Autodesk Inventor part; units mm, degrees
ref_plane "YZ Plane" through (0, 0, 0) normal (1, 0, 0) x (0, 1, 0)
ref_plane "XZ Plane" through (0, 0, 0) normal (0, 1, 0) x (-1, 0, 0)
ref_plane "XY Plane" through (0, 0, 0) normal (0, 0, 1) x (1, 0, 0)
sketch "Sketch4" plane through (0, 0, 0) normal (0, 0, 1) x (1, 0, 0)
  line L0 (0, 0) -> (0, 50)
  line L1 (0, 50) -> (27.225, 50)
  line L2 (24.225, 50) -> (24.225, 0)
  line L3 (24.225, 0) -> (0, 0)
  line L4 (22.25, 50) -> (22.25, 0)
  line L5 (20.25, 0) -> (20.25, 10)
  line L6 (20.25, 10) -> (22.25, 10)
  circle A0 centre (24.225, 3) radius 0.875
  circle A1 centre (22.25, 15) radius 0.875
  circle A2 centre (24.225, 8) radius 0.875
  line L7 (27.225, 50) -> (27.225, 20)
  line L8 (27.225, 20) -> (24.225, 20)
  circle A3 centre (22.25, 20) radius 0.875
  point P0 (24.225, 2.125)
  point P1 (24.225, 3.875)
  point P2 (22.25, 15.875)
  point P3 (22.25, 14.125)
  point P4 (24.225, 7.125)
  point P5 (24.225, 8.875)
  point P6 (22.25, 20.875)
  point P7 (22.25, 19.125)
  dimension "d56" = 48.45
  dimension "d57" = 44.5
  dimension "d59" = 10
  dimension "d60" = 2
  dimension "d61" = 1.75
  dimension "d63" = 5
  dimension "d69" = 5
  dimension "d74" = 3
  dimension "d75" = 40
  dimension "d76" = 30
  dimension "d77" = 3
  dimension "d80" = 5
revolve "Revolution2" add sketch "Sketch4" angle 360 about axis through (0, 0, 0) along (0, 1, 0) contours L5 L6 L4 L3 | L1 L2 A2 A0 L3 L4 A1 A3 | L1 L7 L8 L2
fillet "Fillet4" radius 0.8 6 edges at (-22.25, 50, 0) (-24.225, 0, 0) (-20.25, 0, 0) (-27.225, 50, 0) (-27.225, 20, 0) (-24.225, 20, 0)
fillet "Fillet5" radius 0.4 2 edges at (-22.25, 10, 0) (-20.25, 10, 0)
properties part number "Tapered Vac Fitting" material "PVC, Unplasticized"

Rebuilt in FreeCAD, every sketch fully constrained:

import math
import FreeCAD as App
import Part
import Sketcher


def edges_at(feature, points):
    """Names of the edges that pass closest to the given points."""
    edges = feature.Shape.Edges
    near = lambda p: min(range(len(edges)), key=lambda i: edges[i].distToShape(Part.Vertex(*p))[0])
    return sorted({f"Edge{near(p) + 1}" for p in points})

doc = App.newDocument("Part")
params = doc.addObject("Spreadsheet::Sheet", "Params")
for row, (alias, value) in enumerate([
    ("sketch1_width", "3 mm"),
    ("sketch1_width2", "2 mm"),
    ("sketch1_height", "10 mm"),
    ("sketch1_height2", "30 mm"),
    ("revolution_angle", "360 deg"),
    ("fillet_radius", "0.8 mm"),
    ("fillet2_radius", "0.4 mm"),
], start=1):
    params.set(f"A{row}", alias)
    params.set(f"B{row}", "=" + value)
    params.setAlias(f"B{row}", alias)

body = doc.addObject("PartDesign::Body", "Body")

# Sketch on XY plane
sketch1 = body.newObject("Sketcher::SketchObject", "Sketch")
sketch1.AttachmentSupport = (doc.getObject("XY_Plane"), [""])
sketch1.MapMode = "FlatFace"
sketch1.addGeometry([
    Part.LineSegment(App.Vector(20.2, 10, 0), App.Vector(20.2, 0, 0)),  # 0
    Part.LineSegment(App.Vector(20.2, 0, 0), App.Vector(24.2, 0, 0)),  # 1
    Part.LineSegment(App.Vector(24.2, 0, 0), App.Vector(24.2, 2.1, 0)),  # 2
    Part.ArcOfCircle(Part.Circle(App.Vector(24.2, 3, 0), App.Vector(0, 0, 1), 0.9), math.radians(90), math.radians(270)),  # 3
    Part.LineSegment(App.Vector(24.2, 3.9, 0), App.Vector(24.2, 7.1, 0)),  # 4
    Part.ArcOfCircle(Part.Circle(App.Vector(24.2, 8, 0), App.Vector(0, 0, 1), 0.9), math.radians(90), math.radians(270)),  # 5
    Part.LineSegment(App.Vector(24.2, 8.9, 0), App.Vector(24.2, 20, 0)),  # 6
    Part.LineSegment(App.Vector(24.2, 20, 0), App.Vector(27.2, 20, 0)),  # 7
    Part.LineSegment(App.Vector(27.2, 20, 0), App.Vector(27.2, 50, 0)),  # 8
    Part.LineSegment(App.Vector(27.2, 50, 0), App.Vector(22.2, 50, 0)),  # 9
    Part.LineSegment(App.Vector(22.2, 50, 0), App.Vector(22.2, 20.9, 0)),  # 10
    Part.ArcOfCircle(Part.Circle(App.Vector(22.2, 20, 0), App.Vector(0, 0, 1), 0.9), math.radians(-90), math.radians(90)),  # 11
    Part.LineSegment(App.Vector(22.2, 19.1, 0), App.Vector(22.2, 15.9, 0)),  # 12
    Part.ArcOfCircle(Part.Circle(App.Vector(22.2, 15, 0), App.Vector(0, 0, 1), 0.9), math.radians(-90), math.radians(90)),  # 13
    Part.LineSegment(App.Vector(22.2, 14.1, 0), App.Vector(22.2, 10, 0)),  # 14
    Part.LineSegment(App.Vector(22.2, 10, 0), App.Vector(20.2, 10, 0)),  # 15
], False)
sketch1.addConstraint([
    Sketcher.Constraint("Coincident", 0, 2, 1, 1),
    Sketcher.Constraint("Coincident", 1, 2, 2, 1),
    Sketcher.Constraint("Coincident", 2, 2, 3, 2),
    Sketcher.Constraint("Coincident", 3, 1, 4, 1),
    Sketcher.Constraint("Coincident", 4, 2, 5, 2),
    Sketcher.Constraint("Coincident", 5, 1, 6, 1),
    Sketcher.Constraint("Coincident", 6, 2, 7, 1),
    Sketcher.Constraint("Coincident", 7, 2, 8, 1),
    Sketcher.Constraint("Coincident", 8, 2, 9, 1),
    Sketcher.Constraint("Coincident", 9, 2, 10, 1),
    Sketcher.Constraint("Coincident", 10, 2, 11, 2),
    Sketcher.Constraint("Coincident", 11, 1, 12, 1),
    Sketcher.Constraint("Coincident", 12, 2, 13, 2),
    Sketcher.Constraint("Coincident", 13, 1, 14, 1),
    Sketcher.Constraint("Coincident", 14, 2, 15, 1),
    Sketcher.Constraint("Coincident", 15, 2, 0, 1),
    Sketcher.Constraint("Vertical", 0),
    Sketcher.Constraint("Horizontal", 1),
    Sketcher.Constraint("Vertical", 2),
    Sketcher.Constraint("Vertical", 4),
    Sketcher.Constraint("Vertical", 6),
    Sketcher.Constraint("Horizontal", 7),
    Sketcher.Constraint("Vertical", 8),
    Sketcher.Constraint("Horizontal", 9),
    Sketcher.Constraint("Vertical", 10),
    Sketcher.Constraint("Vertical", 12),
    Sketcher.Constraint("Vertical", 14),
    Sketcher.Constraint("Horizontal", 15),
    Sketcher.Constraint("Equal", 3, 5),
    Sketcher.Constraint("Equal", 5, 11),
    Sketcher.Constraint("Equal", 11, 13),
    Sketcher.Constraint("PointOnObject", 0, 2, -1),
    Sketcher.Constraint("Horizontal", 11, 3, 6, 2),
    Sketcher.Constraint("Vertical", 3, 3, 5, 3),
    Sketcher.Constraint("Vertical", 11, 3, 13, 3),
    Sketcher.Constraint("Vertical", 5, 3, 1, 2),
    Sketcher.Constraint("Vertical", 2, 2, 3, 1),
    Sketcher.Constraint("Vertical", 4, 2, 5, 1),
    Sketcher.Constraint("Vertical", 13, 3, 9, 2),
    Sketcher.Constraint("Vertical", 10, 2, 11, 1),
    Sketcher.Constraint("Vertical", 12, 2, 13, 1),
    Sketcher.Constraint("Equal", 4, 12),
    Sketcher.Constraint("DistanceX", 7, 1, 7, 2, 3.0),
    Sketcher.Constraint("DistanceX", 15, 2, 15, 1, 2.0),
    Sketcher.Constraint("DistanceY", 0, 2, 0, 1, 10.0),
    Sketcher.Constraint("DistanceY", 8, 1, 8, 2, 30.0),
    Sketcher.Constraint("DistanceY", -1, 1, 3, 3, 3.0),
    Sketcher.Constraint("Radius", 3, 0.875),
    Sketcher.Constraint("DistanceY", 3, 3, 5, 3, 5.0),
    Sketcher.Constraint("DistanceY", 14, 2, 13, 3, 5.0),
    Sketcher.Constraint("DistanceX", 1, 1, 1, 2, 3.975),
    Sketcher.Constraint("DistanceX", -1, 1, 11, 3, 22.25),
])
sketch1.setExpression("Constraints[42]", "Params.sketch1_width")
sketch1.setExpression("Constraints[43]", "Params.sketch1_width2")
sketch1.setExpression("Constraints[44]", "Params.sketch1_height")
sketch1.setExpression("Constraints[45]", "Params.sketch1_height2")
revolution = body.newObject("PartDesign::Revolution", "Revolution")
revolution.Profile = sketch1
revolution.ReferenceAxis = (sketch1, ["V_Axis"])
revolution.setExpression("Angle", "Params.revolution_angle")
doc.recompute()

fillet = body.newObject("PartDesign::Fillet", "Fillet")
fillet.Base = (revolution, edges_at(revolution, [
    (-22.25, 50, 0),
    (-24.225, 0, 0),
    (-20.25, 0, 0),
    (-27.225, 50, 0),
    (-27.225, 20, 0),
    (-24.225, 20, 0),
]))
fillet.setExpression("Radius", "Params.fillet_radius")
doc.recompute()

fillet2 = body.newObject("PartDesign::Fillet", "Fillet001")
fillet2.Base = (fillet, edges_at(fillet, [(-22.25, 10, 0), (-20.25, 10, 0)]))
fillet2.setExpression("Radius", "Params.fillet2_radius")

doc.recompute()
